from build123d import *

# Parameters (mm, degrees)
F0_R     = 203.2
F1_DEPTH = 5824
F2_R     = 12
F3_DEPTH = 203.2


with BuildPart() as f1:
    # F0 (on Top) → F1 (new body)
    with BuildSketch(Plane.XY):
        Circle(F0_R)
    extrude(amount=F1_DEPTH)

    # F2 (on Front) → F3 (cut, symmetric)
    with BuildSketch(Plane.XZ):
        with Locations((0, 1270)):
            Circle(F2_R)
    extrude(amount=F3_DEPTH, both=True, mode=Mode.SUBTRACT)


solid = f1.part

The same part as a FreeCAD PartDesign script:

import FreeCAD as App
import Part
import Sketcher
from FreeCAD import Vector
Q = App.Units.Quantity

doc = App.newDocument("Part")
body = doc.addObject("PartDesign::Body", "Body")

# Sketch on XY plane
sketch1 = body.newObject("Sketcher::SketchObject", "Sketch")
sketch1.AttachmentSupport = (doc.getObject("XY_Plane"), [""])
sketch1.MapMode = "FlatFace"
sketch1.addGeometry(Part.Circle(Vector(0, 0, 0), Vector(0, 0, 1), 203.2), False)
sketch1.addConstraint([
    Sketcher.Constraint("Coincident", 0, 3, -1, 1),
    Sketcher.Constraint("Diameter", 0, Q("406.4 mm")),
])
pad1 = body.newObject("PartDesign::Pad", "Pad")
pad1.Profile = sketch1
pad1.Length = 5824

# Sketch on XZ plane
sketch2 = body.newObject("Sketcher::SketchObject", "Sketch001")
sketch2.AttachmentSupport = (doc.getObject("XZ_Plane"), [""])
sketch2.MapMode = "FlatFace"
sketch2.addGeometry(Part.Circle(Vector(0, 1270, 0), Vector(0, 0, 1), 12), False)
sketch2.addConstraint([
    Sketcher.Constraint("PointOnObject", 0, 3, -2),
    Sketcher.Constraint("Diameter", 0, Q("24 mm")),
    Sketcher.Constraint("DistanceY", -1, 1, 0, 3, Q("1270 mm")),
])
pocket1 = body.newObject("PartDesign::Pocket", "Pocket")
pocket1.Profile = sketch2
pocket1.Length = 406.4
pocket1.Midplane = True

doc.recompute()
